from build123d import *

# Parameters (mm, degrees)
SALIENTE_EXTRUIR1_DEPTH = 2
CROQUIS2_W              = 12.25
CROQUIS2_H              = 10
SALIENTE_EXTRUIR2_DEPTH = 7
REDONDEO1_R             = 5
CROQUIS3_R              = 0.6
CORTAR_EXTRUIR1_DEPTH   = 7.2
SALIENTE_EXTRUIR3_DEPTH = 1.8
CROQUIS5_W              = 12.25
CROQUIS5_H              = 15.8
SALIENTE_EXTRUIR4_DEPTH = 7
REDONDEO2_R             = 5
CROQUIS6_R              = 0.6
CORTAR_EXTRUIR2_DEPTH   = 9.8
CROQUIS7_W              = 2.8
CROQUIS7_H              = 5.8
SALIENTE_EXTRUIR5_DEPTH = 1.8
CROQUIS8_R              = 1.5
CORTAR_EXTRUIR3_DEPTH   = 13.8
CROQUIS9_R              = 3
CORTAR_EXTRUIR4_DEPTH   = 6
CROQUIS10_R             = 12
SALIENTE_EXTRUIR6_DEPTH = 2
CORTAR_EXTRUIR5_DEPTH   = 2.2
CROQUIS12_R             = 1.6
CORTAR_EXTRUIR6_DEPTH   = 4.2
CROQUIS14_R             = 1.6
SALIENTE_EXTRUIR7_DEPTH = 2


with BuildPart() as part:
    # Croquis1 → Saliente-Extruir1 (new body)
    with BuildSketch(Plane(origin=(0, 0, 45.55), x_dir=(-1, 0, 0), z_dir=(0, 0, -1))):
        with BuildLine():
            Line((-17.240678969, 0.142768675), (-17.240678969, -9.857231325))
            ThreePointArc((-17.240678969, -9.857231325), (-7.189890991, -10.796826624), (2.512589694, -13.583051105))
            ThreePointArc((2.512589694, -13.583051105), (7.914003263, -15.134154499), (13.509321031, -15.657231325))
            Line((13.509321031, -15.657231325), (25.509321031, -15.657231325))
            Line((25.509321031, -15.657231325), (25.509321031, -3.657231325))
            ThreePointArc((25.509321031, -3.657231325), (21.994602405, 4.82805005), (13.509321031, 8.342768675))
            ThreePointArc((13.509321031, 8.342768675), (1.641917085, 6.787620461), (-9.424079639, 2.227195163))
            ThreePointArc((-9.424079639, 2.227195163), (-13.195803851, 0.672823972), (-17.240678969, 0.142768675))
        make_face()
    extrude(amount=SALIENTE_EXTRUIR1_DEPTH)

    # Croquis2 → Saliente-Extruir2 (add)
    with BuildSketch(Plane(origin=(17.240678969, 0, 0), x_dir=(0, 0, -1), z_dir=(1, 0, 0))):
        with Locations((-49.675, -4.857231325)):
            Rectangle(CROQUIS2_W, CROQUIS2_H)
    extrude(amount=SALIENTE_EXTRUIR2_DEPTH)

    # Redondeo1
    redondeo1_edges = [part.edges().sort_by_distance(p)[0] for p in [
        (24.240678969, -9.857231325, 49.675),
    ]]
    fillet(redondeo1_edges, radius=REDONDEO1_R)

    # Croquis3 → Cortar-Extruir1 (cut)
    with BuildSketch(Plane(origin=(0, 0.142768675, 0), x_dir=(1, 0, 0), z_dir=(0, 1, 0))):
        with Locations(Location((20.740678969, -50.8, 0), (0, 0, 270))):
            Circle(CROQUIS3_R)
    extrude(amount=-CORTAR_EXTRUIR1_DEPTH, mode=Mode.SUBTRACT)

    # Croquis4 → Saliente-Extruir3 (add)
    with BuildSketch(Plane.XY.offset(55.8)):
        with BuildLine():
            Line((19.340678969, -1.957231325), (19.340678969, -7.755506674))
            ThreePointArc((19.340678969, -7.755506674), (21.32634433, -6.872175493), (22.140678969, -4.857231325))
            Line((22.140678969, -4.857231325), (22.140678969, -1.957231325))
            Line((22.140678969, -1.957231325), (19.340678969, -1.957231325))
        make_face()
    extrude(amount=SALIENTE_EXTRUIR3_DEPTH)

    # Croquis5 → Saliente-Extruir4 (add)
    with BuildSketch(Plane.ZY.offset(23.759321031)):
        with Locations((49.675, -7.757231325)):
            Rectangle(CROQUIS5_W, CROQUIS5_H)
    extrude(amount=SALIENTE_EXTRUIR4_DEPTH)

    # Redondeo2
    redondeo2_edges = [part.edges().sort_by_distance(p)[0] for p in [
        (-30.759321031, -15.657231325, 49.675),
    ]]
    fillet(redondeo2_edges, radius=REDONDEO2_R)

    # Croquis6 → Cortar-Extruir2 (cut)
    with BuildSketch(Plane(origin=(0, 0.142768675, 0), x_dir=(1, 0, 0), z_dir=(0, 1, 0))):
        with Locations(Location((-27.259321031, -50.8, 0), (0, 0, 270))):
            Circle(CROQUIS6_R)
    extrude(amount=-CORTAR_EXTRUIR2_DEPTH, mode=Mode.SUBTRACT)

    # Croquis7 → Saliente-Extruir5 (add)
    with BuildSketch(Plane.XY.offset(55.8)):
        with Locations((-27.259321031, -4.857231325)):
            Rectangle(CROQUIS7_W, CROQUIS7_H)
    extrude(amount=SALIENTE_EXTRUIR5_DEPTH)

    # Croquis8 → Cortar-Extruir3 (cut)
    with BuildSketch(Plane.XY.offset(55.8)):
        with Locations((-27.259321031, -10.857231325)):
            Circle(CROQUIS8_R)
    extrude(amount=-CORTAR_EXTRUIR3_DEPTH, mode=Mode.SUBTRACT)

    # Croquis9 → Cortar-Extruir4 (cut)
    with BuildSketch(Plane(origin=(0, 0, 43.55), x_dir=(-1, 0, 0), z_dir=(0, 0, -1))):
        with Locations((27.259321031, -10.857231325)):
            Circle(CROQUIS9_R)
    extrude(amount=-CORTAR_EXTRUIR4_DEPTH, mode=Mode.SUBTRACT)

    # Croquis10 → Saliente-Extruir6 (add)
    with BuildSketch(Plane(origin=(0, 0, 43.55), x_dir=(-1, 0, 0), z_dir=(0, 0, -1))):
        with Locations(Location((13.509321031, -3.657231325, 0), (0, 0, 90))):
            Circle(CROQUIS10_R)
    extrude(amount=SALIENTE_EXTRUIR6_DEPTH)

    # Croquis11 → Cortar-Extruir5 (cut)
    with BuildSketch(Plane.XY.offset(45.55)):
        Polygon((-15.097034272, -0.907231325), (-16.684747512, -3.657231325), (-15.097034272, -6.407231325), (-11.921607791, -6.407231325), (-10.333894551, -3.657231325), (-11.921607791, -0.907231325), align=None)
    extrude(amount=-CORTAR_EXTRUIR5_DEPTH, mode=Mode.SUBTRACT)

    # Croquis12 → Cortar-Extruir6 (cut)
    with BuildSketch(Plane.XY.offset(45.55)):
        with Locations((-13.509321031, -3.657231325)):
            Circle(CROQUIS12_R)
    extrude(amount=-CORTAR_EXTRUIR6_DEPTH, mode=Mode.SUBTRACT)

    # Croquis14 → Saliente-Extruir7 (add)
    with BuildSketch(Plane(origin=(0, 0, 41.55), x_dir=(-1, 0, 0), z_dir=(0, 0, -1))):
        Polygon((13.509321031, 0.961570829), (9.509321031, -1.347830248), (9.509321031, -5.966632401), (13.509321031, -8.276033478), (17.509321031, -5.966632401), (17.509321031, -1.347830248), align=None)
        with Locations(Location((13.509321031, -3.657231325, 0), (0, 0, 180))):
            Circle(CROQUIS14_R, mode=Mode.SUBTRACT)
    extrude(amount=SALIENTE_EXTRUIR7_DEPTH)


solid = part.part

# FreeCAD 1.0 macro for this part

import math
import FreeCAD as App
import Part
import Sketcher

V = App.Vector
Q = App.Units.Quantity


def edges_at(feature, points):
    """Names of the edges that pass closest to the given points."""
    edges = feature.Shape.Edges
    near = lambda p: min(range(len(edges)), key=lambda i: edges[i].distToShape(Part.Vertex(*p))[0])
    return sorted({f"Edge{near(p) + 1}" for p in points})

doc = App.newDocument("Part")
body = doc.addObject("PartDesign::Body", "Body")

sketch1 = body.newObject("Sketcher::SketchObject", "Sketch")
sketch1.AttachmentSupport = (doc.getObject("XY_Plane"), [""])
sketch1.MapMode = "FlatFace"
sketch1.AttachmentOffset = App.Placement(V(0, 0, 45.55), App.Rotation())
sketch1.addGeometry([
    Part.LineSegment(V(17, 0, 0), V(17, -10, 0)),
    Part.ArcOfCircle(Part.Circle(V(17, -64, 0), V(0, 0, 1), 54), math.radians(90), math.radians(111)),
    Part.ArcOfCircle(Part.Circle(V(-14, 15, 0), V(0, 0, 1), 30), math.radians(-90), math.radians(-69)),
    Part.LineSegment(V(-14, -16, 0), V(-26, -16, 0)),
    Part.LineSegment(V(-26, -16, 0), V(-26, -4, 0)),
    Part.ArcOfCircle(Part.Circle(V(-14, -4, 0), V(0, 0, 1), 12), math.radians(90), math.radians(180)),
    Part.ArcOfCircle(Part.Circle(V(-14, -38, 0), V(0, 0, 1), 46), math.radians(60), math.radians(90)),
    Part.ArcOfCircle(Part.Circle(V(17, 16, 0), V(0, 0, 1), 16), math.radians(-120), math.radians(-90)),
], False)
sketch1.addConstraint([
    Sketcher.Constraint("Coincident", 0, 2, 1, 1),
    Sketcher.Constraint("Tangent", 1, 2, 2, 2),
    Sketcher.Constraint("Tangent", 2, 1, 3, 1),
    Sketcher.Constraint("Coincident", 3, 2, 4, 1),
    Sketcher.Constraint("Tangent", 4, 2, 5, 2),
    Sketcher.Constraint("Tangent", 5, 1, 6, 2),
    Sketcher.Constraint("Tangent", 6, 1, 7, 1),
    Sketcher.Constraint("Coincident", 7, 2, 0, 1),
    Sketcher.Constraint("Vertical", 0),
    Sketcher.Constraint("Horizontal", 3),
    Sketcher.Constraint("Vertical", 4),
    Sketcher.Constraint("Vertical", 2, 3, 5, 3),
    Sketcher.Constraint("Vertical", 5, 3, 6, 3),
    Sketcher.Constraint("Vertical", 1, 3, 7, 3),
    Sketcher.Constraint("Vertical", 7, 3, 0, 2),
    Sketcher.Constraint("Equal", 3, 4),
    Sketcher.Constraint("Radius", 5, Q("12 mm")),
    Sketcher.Constraint("DistanceY", 0, 2, 0, 1, Q("10 mm")),
    Sketcher.Constraint("Radius", 1, Q("54.226101 mm")),
    Sketcher.Constraint("DistanceY", 0, 2, 5, 3, Q("6.2 mm")),
    Sketcher.Constraint("Radius", 2, Q("30.187908 mm")),
    Sketcher.Constraint("Radius", 6, Q("46.057913 mm")),
    Sketcher.Constraint("DistanceX", -1, 1, 1, 3, Q("17.240679 mm")),
    Sketcher.Constraint("DistanceY", 1, 3, -1, 1, Q("64.083332 mm")),
])
pad1 = body.newObject("PartDesign::Pad", "Pad")
pad1.Profile = sketch1
pad1.Length = 2
pad1.Reversed = True

sketch2 = body.newObject("Sketcher::SketchObject", "Sketch001")
sketch2.AttachmentSupport = (doc.getObject("YZ_Plane"), [""])
sketch2.MapMode = "FlatFace"
sketch2.AttachmentOffset = App.Placement(V(0, 0, 17.240679), App.Rotation())
sketch2.addGeometry([
    Part.LineSegment(V(0, 56, 0), V(-10, 56, 0)),
    Part.LineSegment(V(-10, 56, 0), V(-10, 44, 0)),
    Part.LineSegment(V(-10, 44, 0), V(0, 44, 0)),
    Part.LineSegment(V(0, 44, 0), V(0, 56, 0)),
], False)
sketch2.addConstraint([
    Sketcher.Constraint("Coincident", 0, 2, 1, 1),
    Sketcher.Constraint("Coincident", 1, 2, 2, 1),
    Sketcher.Constraint("Coincident", 2, 2, 3, 1),
    Sketcher.Constraint("Coincident", 3, 2, 0, 1),
    Sketcher.Constraint("Horizontal", 0),
    Sketcher.Constraint("Vertical", 1),
    Sketcher.Constraint("Horizontal", 2),
    Sketcher.Constraint("Vertical", 3),
    Sketcher.Constraint("DistanceX", 0, 2, 0, 1, Q("10 mm")),
    Sketcher.Constraint("DistanceY", 1, 2, 1, 1, Q("12.25 mm")),
    Sketcher.Constraint("DistanceY", -1, 1, 0, 2, Q("55.8 mm")),
    Sketcher.Constraint("DistanceX", 0, 2, -1, 1, Q("9.857231 mm")),
])
pad2 = body.newObject("PartDesign::Pad", "Pad001")
pad2.Profile = sketch2
pad2.Length = 7
doc.recompute()

fillet = body.newObject("PartDesign::Fillet", "Fillet")
fillet.Base = (pad2, edges_at(pad2, [(24.241, -9.857, 49.675)]))
fillet.Radius = 5

sketch3 = body.newObject("Sketcher::SketchObject", "Sketch002")
sketch3.AttachmentSupport = (doc.getObject("XZ_Plane"), [""])
sketch3.MapMode = "FlatFace"
sketch3.AttachmentOffset = App.Placement(V(0, 0, -0.142769), App.Rotation())
sketch3.addGeometry(Part.Circle(V(20.7, 50.8, 0), V(0, 0, 1), 0.6), False)
sketch3.addConstraint([
    Sketcher.Constraint("Diameter", 0, Q("1.2 mm")),
    Sketcher.Constraint("DistanceY", -1, 1, 0, 3, Q("50.8 mm")),
    Sketcher.Constraint("DistanceX", -1, 1, 0, 3, Q("20.740679 mm")),
])
pocket1 = body.newObject("PartDesign::Pocket", "Pocket")
pocket1.Profile = sketch3
pocket1.Length = 7.2
pocket1.Reversed = True

sketch4 = body.newObject("Sketcher::SketchObject", "Sketch003")
sketch4.AttachmentSupport = (doc.getObject("XY_Plane"), [""])
sketch4.MapMode = "FlatFace"
sketch4.AttachmentOffset = App.Placement(V(0, 0, 55.8), App.Rotation())
sketch4.addGeometry([
    Part.LineSegment(V(19.3, -2, 0), V(19.3, -7.8, 0)),
    Part.ArcOfCircle(Part.Circle(V(19.2, -4.9, 0), V(0, 0, 1), 2.9), math.radians(-88), math.radians(0)),
    Part.LineSegment(V(22.1, -4.9, 0), V(22.1, -2, 0)),
    Part.LineSegment(V(22.1, -2, 0), V(19.3, -2, 0)),
], False)
sketch4.addConstraint([
    Sketcher.Constraint("Coincident", 0, 2, 1, 1),
    Sketcher.Constraint("Tangent", 1, 2, 2, 1),
    Sketcher.Constraint("Coincident", 2, 2, 3, 1),
    Sketcher.Constraint("Coincident", 3, 2, 0, 1),
    Sketcher.Constraint("Vertical", 0),
    Sketcher.Constraint("Vertical", 2),
    Sketcher.Constraint("Horizontal", 3),
    Sketcher.Constraint("Radius", 1, Q("2.9 mm")),
    Sketcher.Constraint("DistanceX", 3, 2, 3, 1, Q("2.8 mm")),
    Sketcher.Constraint("DistanceY", 2, 1, 2, 2, Q("2.9 mm")),
    Sketcher.Constraint("DistanceX", -1, 1, 1, 3, Q("19.240679 mm")),
    Sketcher.Constraint("DistanceY", 1, 3, -1, 1, Q("4.857231 mm")),
])
pad3 = body.newObject("PartDesign::Pad", "Pad002")
pad3.Profile = sketch4
pad3.Length = 1.8

sketch5 = body.newObject("Sketcher::SketchObject", "Sketch004")
sketch5.AttachmentSupport = (doc.getObject("YZ_Plane"), [""])
sketch5.MapMode = "FlatFace"
sketch5.AttachmentOffset = App.Placement(V(0, 0, -23.759321), App.Rotation())
sketch5.addGeometry([
    Part.LineSegment(V(0, 44, 0), V(-16, 44, 0)),
    Part.LineSegment(V(-16, 44, 0), V(-16, 56, 0)),
    Part.LineSegment(V(-16, 56, 0), V(0, 56, 0)),
    Part.LineSegment(V(0, 56, 0), V(0, 44, 0)),
], False)
sketch5.addConstraint([
    Sketcher.Constraint("Coincident", 0, 2, 1, 1),
    Sketcher.Constraint("Coincident", 1, 2, 2, 1),
    Sketcher.Constraint("Coincident", 2, 2, 3, 1),
    Sketcher.Constraint("Coincident", 3, 2, 0, 1),
    Sketcher.Constraint("Horizontal", 0),
    Sketcher.Constraint("Vertical", 1),
    Sketcher.Constraint("Horizontal", 2),
    Sketcher.Constraint("Vertical", 3),
    Sketcher.Constraint("DistanceX", 0, 2, 0, 1, Q("15.8 mm")),
    Sketcher.Constraint("DistanceY", 1, 1, 1, 2, Q("12.25 mm")),
    Sketcher.Constraint("DistanceY", -1, 1, 1, 2, Q("55.8 mm")),
    Sketcher.Constraint("DistanceX", 0, 2, -1, 1, Q("15.657231 mm")),
])
pad4 = body.newObject("PartDesign::Pad", "Pad003")
pad4.Profile = sketch5
pad4.Length = 7
pad4.Reversed = True
doc.recompute()

fillet2 = body.newObject("PartDesign::Fillet", "Fillet001")
fillet2.Base = (pad4, edges_at(pad4, [(-30.759, -15.657, 49.675)]))
fillet2.Radius = 5

sketch6 = body.newObject("Sketcher::SketchObject", "Sketch005")
sketch6.AttachmentSupport = (doc.getObject("XZ_Plane"), [""])
sketch6.MapMode = "FlatFace"
sketch6.AttachmentOffset = App.Placement(V(0, 0, -0.142769), App.Rotation())
sketch6.addGeometry(Part.Circle(V(-27.3, 50.8, 0), V(0, 0, 1), 0.6), False)
sketch6.addConstraint([
    Sketcher.Constraint("Diameter", 0, Q("1.2 mm")),
    Sketcher.Constraint("DistanceY", -1, 1, 0, 3, Q("50.8 mm")),
    Sketcher.Constraint("DistanceX", 0, 3, -1, 1, Q("27.259321 mm")),
])
pocket2 = body.newObject("PartDesign::Pocket", "Pocket001")
pocket2.Profile = sketch6
pocket2.Length = 9.8
pocket2.Reversed = True

sketch7 = body.newObject("Sketcher::SketchObject", "Sketch006")
sketch7.AttachmentSupport = (doc.getObject("XY_Plane"), [""])
sketch7.MapMode = "FlatFace"
sketch7.AttachmentOffset = App.Placement(V(0, 0, 55.8), App.Rotation())
sketch7.addGeometry([
    Part.LineSegment(V(-28.7, -2, 0), V(-28.7, -7.8, 0)),
    Part.LineSegment(V(-28.7, -7.8, 0), V(-25.9, -7.8, 0)),
    Part.LineSegment(V(-25.9, -7.8, 0), V(-25.9, -2, 0)),
    Part.LineSegment(V(-25.9, -2, 0), V(-28.7, -2, 0)),
], False)
sketch7.addConstraint([
    Sketcher.Constraint("Coincident", 0, 2, 1, 1),
    Sketcher.Constraint("Coincident", 1, 2, 2, 1),
    Sketcher.Constraint("Coincident", 2, 2, 3, 1),
    Sketcher.Constraint("Coincident", 3, 2, 0, 1),
    Sketcher.Constraint("Vertical", 0),
    Sketcher.Constraint("Horizontal", 1),
    Sketcher.Constraint("Vertical", 2),
    Sketcher.Constraint("Horizontal", 3),
    Sketcher.Constraint("DistanceX", 1, 1, 1, 2, Q("2.8 mm")),
    Sketcher.Constraint("DistanceY", 0, 2, 0, 1, Q("5.8 mm")),
    Sketcher.Constraint("DistanceX", 0, 2, -1, 1, Q("28.659321 mm")),
    Sketcher.Constraint("DistanceY", 0, 2, -1, 1, Q("7.757231 mm")),
])
pad5 = body.newObject("PartDesign::Pad", "Pad004")
pad5.Profile = sketch7
pad5.Length = 1.8

sketch8 = body.newObject("Sketcher::SketchObject", "Sketch007")
sketch8.AttachmentSupport = (doc.getObject("XY_Plane"), [""])
sketch8.MapMode = "FlatFace"
sketch8.AttachmentOffset = App.Placement(V(0, 0, 55.8), App.Rotation())
sketch8.addGeometry(Part.Circle(V(-27.3, -10.9, 0), V(0, 0, 1), 1.5), False)
sketch8.addConstraint([
    Sketcher.Constraint("Diameter", 0, Q("3 mm")),
    Sketcher.Constraint("DistanceX", 0, 3, -1, 1, Q("27.259321 mm")),
    Sketcher.Constraint("DistanceY", 0, 3, -1, 1, Q("10.857231 mm")),
])
pocket3 = body.newObject("PartDesign::Pocket", "Pocket002")
pocket3.Profile = sketch8
pocket3.Length = 13.8

sketch9 = body.newObject("Sketcher::SketchObject", "Sketch008")
sketch9.AttachmentSupport = (doc.getObject("XY_Plane"), [""])
sketch9.MapMode = "FlatFace"
sketch9.AttachmentOffset = App.Placement(V(0, 0, 43.55), App.Rotation())
sketch9.addGeometry(Part.Circle(V(-27.3, -10.9, 0), V(0, 0, 1), 3), False)
sketch9.addConstraint([
    Sketcher.Constraint("Diameter", 0, Q("6 mm")),
    Sketcher.Constraint("DistanceX", 0, 3, -1, 1, Q("27.259321 mm")),
    Sketcher.Constraint("DistanceY", 0, 3, -1, 1, Q("10.857231 mm")),
])
pocket4 = body.newObject("PartDesign::Pocket", "Pocket003")
pocket4.Profile = sketch9
pocket4.Length = 6
pocket4.Reversed = True

sketch10 = body.newObject("Sketcher::SketchObject", "Sketch009")
sketch10.AttachmentSupport = (doc.getObject("XY_Plane"), [""])
sketch10.MapMode = "FlatFace"
sketch10.AttachmentOffset = App.Placement(V(0, 0, 43.55), App.Rotation())
sketch10.addGeometry(Part.Circle(V(-14, -4, 0), V(0, 0, 1), 12), False)
sketch10.addConstraint([
    Sketcher.Constraint("Diameter", 0, Q("24 mm")),
    Sketcher.Constraint("DistanceX", 0, 3, -1, 1, Q("13.509321 mm")),
    Sketcher.Constraint("DistanceY", 0, 3, -1, 1, Q("3.657231 mm")),
])
pad6 = body.newObject("PartDesign::Pad", "Pad005")
pad6.Profile = sketch10
pad6.Length = 2
pad6.Reversed = True

sketch11 = body.newObject("Sketcher::SketchObject", "Sketch010")
sketch11.AttachmentSupport = (doc.getObject("XY_Plane"), [""])
sketch11.MapMode = "FlatFace"
sketch11.AttachmentOffset = App.Placement(V(0, 0, 45.55), App.Rotation())
sketch11.addGeometry([
    Part.LineSegment(V(-15.1, -0.9, 0), V(-16.7, -3.7, 0)),
    Part.LineSegment(V(-16.7, -3.7, 0), V(-15.1, -6.4, 0)),
    Part.LineSegment(V(-15.1, -6.4, 0), V(-11.9, -6.4, 0)),
    Part.LineSegment(V(-11.9, -6.4, 0), V(-10.3, -3.7, 0)),
    Part.LineSegment(V(-10.3, -3.7, 0), V(-11.9, -0.9, 0)),
    Part.LineSegment(V(-11.9, -0.9, 0), V(-15.1, -0.9, 0)),
], False)
sketch11.addConstraint([
    Sketcher.Constraint("Coincident", 0, 2, 1, 1),
    Sketcher.Constraint("Coincident", 1, 2, 2, 1),
    Sketcher.Constraint("Coincident", 2, 2, 3, 1),
    Sketcher.Constraint("Coincident", 3, 2, 4, 1),
    Sketcher.Constraint("Coincident", 4, 2, 5, 1),
    Sketcher.Constraint("Coincident", 5, 2, 0, 1),
    Sketcher.Constraint("Horizontal", 2),
    Sketcher.Constraint("Horizontal", 5),
    Sketcher.Constraint("Parallel", 0, 3),
    Sketcher.Constraint("Parallel", 1, 4),
    Sketcher.Constraint("Horizontal", 0, 2, 3, 2),
    Sketcher.Constraint("Vertical", 2, 2, 4, 2),
    Sketcher.Constraint("Vertical", 1, 2, 5, 2),
    Sketcher.Constraint("Angle", 0, Q("-120 deg")),
    Sketcher.Constraint("DistanceY", 2, 2, 4, 2, Q("5.5 mm")),
    Sketcher.Constraint("DistanceX", 2, 1, 2, 2, Q("3.175426 mm")),
    Sketcher.Constraint("DistanceY", 0, 2, -1, 1, Q("3.657231 mm")),
    Sketcher.Constraint("DistanceX", 0, 2, -1, 1, Q("16.684748 mm")),
])
pocket5 = body.newObject("PartDesign::Pocket", "Pocket004")
pocket5.Profile = sketch11
pocket5.Length = 2.2

sketch12 = body.newObject("Sketcher::SketchObject", "Sketch011")
sketch12.AttachmentSupport = (doc.getObject("XY_Plane"), [""])
sketch12.MapMode = "FlatFace"
sketch12.AttachmentOffset = App.Placement(V(0, 0, 45.55), App.Rotation())
sketch12.addGeometry(Part.Circle(V(-13.5, -3.7, 0), V(0, 0, 1), 1.6), False)
sketch12.addConstraint([
    Sketcher.Constraint("Diameter", 0, Q("3.2 mm")),
    Sketcher.Constraint("DistanceX", 0, 3, -1, 1, Q("13.509321 mm")),
    Sketcher.Constraint("DistanceY", 0, 3, -1, 1, Q("3.657231 mm")),
])
pocket6 = body.newObject("PartDesign::Pocket", "Pocket005")
pocket6.Profile = sketch12
pocket6.Length = 4.2

sketch13 = body.newObject("Sketcher::SketchObject", "Sketch012")
sketch13.AttachmentSupport = (doc.getObject("XY_Plane"), [""])
sketch13.MapMode = "FlatFace"
sketch13.AttachmentOffset = App.Placement(V(0, 0, 41.55), App.Rotation())
sketch13.addGeometry([
    Part.LineSegment(V(-13.5, 1, 0), V(-9.5, -1.3, 0)),
    Part.LineSegment(V(-9.5, -1.3, 0), V(-9.5, -6, 0)),
    Part.LineSegment(V(-9.5, -6, 0), V(-13.5, -8.3, 0)),
    Part.LineSegment(V(-13.5, -8.3, 0), V(-17.5, -6, 0)),
    Part.LineSegment(V(-17.5, -6, 0), V(-17.5, -1.3, 0)),
    Part.LineSegment(V(-17.5, -1.3, 0), V(-13.5, 1, 0)),
    Part.Circle(V(-13.5, -3.7, 0), V(0, 0, 1), 1.6),
], False)
sketch13.addConstraint([
    Sketcher.Constraint("Coincident", 0, 2, 1, 1),
    Sketcher.Constraint("Coincident", 1, 2, 2, 1),
    Sketcher.Constraint("Coincident", 2, 2, 3, 1),
    Sketcher.Constraint("Coincident", 3, 2, 4, 1),
    Sketcher.Constraint("Coincident", 4, 2, 5, 1),
    Sketcher.Constraint("Coincident", 5, 2, 0, 1),
    Sketcher.Constraint("Vertical", 1),
    Sketcher.Constraint("Vertical", 4),
    Sketcher.Constraint("Parallel", 0, 3),
    Sketcher.Constraint("Parallel", 2, 5),
    Sketcher.Constraint("Horizontal", 1, 2, 3, 2),
    Sketcher.Constraint("Horizontal", 0, 2, 4, 2),
    Sketcher.Constraint("Vertical", 6, 3, 2, 2),
    Sketcher.Constraint("Vertical", 2, 2, 5, 2),
    Sketcher.Constraint("Diameter", 6, Q("3.2 mm")),
    Sketcher.Constraint("Angle", 0, Q("-30 deg")),
    Sketcher.Constraint("DistanceX", 6, 3, 0, 2, Q("4 mm")),
    Sketcher.Constraint("DistanceY", 6, 3, 0, 2, Q("2.309401 mm")),
    Sketcher.Constraint("DistanceY", 1, 2, 6, 3, Q("2.309401 mm")),
    Sketcher.Constraint("DistanceX", 6, 3, -1, 1, Q("13.509321 mm")),
    Sketcher.Constraint("DistanceY", 6, 3, -1, 1, Q("3.657231 mm")),
])
pad7 = body.newObject("PartDesign::Pad", "Pad006")
pad7.Profile = sketch13
pad7.Length = 2
pad7.Reversed = True

doc.recompute()
